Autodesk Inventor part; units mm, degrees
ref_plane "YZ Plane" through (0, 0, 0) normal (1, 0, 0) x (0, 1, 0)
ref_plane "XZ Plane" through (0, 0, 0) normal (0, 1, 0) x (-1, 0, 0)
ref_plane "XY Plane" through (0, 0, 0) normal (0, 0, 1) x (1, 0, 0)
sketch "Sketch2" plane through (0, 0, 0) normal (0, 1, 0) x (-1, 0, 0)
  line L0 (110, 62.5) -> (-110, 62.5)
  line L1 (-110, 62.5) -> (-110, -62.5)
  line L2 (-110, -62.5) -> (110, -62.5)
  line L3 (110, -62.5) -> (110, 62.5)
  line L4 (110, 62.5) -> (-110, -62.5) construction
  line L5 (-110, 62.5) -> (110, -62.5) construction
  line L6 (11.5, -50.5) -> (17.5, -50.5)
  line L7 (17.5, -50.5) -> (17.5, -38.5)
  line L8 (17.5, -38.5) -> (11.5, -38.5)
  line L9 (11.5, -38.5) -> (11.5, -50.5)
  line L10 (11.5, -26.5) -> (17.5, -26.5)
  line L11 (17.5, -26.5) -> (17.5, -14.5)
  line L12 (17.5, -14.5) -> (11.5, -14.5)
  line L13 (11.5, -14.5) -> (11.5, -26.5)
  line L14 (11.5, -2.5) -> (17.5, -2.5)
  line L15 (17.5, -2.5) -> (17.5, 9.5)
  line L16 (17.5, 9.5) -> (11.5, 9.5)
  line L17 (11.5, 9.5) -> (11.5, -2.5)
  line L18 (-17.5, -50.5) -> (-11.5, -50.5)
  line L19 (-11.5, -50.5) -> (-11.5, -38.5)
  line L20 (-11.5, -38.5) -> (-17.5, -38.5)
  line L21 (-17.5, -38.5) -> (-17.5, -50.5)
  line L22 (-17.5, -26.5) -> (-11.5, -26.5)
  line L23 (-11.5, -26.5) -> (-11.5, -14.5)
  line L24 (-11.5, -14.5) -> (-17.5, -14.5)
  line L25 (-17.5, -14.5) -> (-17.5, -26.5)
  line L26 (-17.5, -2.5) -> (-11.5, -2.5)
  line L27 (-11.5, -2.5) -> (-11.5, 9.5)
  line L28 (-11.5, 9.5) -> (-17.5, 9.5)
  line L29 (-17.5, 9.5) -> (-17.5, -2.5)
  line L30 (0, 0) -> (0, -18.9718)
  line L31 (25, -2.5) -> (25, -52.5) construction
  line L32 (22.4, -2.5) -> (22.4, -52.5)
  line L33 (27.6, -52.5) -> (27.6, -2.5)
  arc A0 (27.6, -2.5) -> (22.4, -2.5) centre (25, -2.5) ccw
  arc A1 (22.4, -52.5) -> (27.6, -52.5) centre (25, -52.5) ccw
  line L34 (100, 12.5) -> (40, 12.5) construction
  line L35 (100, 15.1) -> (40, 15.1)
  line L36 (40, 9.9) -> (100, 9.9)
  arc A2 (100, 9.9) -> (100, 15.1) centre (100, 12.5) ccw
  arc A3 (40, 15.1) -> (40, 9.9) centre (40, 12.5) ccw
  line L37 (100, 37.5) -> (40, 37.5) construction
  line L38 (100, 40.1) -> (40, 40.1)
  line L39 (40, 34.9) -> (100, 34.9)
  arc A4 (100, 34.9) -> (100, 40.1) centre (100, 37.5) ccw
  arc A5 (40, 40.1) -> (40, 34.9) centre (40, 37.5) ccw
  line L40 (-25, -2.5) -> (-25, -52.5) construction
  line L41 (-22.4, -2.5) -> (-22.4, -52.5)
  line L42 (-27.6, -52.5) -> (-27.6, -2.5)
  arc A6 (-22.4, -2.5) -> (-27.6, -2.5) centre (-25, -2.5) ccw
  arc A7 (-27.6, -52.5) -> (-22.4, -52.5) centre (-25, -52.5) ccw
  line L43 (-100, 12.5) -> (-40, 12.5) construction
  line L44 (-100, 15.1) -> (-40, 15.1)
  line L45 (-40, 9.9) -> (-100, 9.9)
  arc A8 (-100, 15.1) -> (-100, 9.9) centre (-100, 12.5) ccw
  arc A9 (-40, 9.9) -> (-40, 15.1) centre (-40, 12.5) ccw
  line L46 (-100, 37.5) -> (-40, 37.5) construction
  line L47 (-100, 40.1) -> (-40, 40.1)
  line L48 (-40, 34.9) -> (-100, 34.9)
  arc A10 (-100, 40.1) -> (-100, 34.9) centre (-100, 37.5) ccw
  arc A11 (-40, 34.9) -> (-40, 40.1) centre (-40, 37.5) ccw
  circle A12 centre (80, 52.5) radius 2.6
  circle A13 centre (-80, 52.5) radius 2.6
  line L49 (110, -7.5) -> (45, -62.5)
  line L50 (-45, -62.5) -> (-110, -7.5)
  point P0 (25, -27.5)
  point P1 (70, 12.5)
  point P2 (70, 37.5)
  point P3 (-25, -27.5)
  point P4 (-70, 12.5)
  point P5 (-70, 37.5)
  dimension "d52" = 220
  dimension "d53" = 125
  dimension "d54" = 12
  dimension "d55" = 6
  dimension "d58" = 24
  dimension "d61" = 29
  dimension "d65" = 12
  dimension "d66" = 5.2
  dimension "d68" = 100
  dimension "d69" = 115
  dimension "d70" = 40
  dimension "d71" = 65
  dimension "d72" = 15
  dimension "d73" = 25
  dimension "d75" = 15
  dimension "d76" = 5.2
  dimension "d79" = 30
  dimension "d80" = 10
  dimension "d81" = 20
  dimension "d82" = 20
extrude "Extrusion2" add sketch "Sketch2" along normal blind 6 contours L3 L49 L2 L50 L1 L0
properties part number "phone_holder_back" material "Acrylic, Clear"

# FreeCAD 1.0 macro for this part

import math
import FreeCAD as App
import Part
import Sketcher
Q = App.Units.Quantity

doc = App.newDocument("Part")
body = doc.addObject("PartDesign::Body", "Body")

# Sketch on XZ plane
sketch1 = body.newObject("Sketcher::SketchObject", "Sketch")
sketch1.AttachmentSupport = (doc.getObject("XZ_Plane"), [""])
sketch1.MapMode = "FlatFace"
sketch1.addGeometry([
    Part.LineSegment(App.Vector(-110, -7.5, 0), App.Vector(-110, 62.5, 0)),  # 0
    Part.LineSegment(App.Vector(-110, 62.5, 0), App.Vector(110, 62.5, 0)),  # 1
    Part.LineSegment(App.Vector(110, 62.5, 0), App.Vector(110, -7.5, 0)),  # 2
    Part.LineSegment(App.Vector(110, -7.5, 0), App.Vector(45, -62.5, 0)),  # 3
    Part.LineSegment(App.Vector(45, -62.5, 0), App.Vector(-45, -62.5, 0)),  # 4
    Part.LineSegment(App.Vector(-45, -62.5, 0), App.Vector(-110, -7.5, 0)),  # 5
    Part.LineSegment(App.Vector(11.5, -50.5, 0), App.Vector(17.5, -50.5, 0)),  # 6
    Part.LineSegment(App.Vector(17.5, -50.5, 0), App.Vector(17.5, -38.5, 0)),  # 7
    Part.LineSegment(App.Vector(17.5, -38.5, 0), App.Vector(11.5, -38.5, 0)),  # 8
    Part.LineSegment(App.Vector(11.5, -38.5, 0), App.Vector(11.5, -50.5, 0)),  # 9
    Part.ArcOfCircle(Part.Circle(App.Vector(25, -2.5, 0), App.Vector(0, 0, 1), 2.6), math.radians(0), math.radians(180)),  # 10
    Part.LineSegment(App.Vector(22.4, -2.5, 0), App.Vector(22.4, -52.5, 0)),  # 11
    Part.ArcOfCircle(Part.Circle(App.Vector(25, -52.5, 0), App.Vector(0, 0, 1), 2.6), math.radians(180), math.radians(360)),  # 12
    Part.LineSegment(App.Vector(27.6, -52.5, 0), App.Vector(27.6, -2.5, 0)),  # 13
    Part.LineSegment(App.Vector(11.5, -26.5, 0), App.Vector(17.5, -26.5, 0)),  # 14
    Part.LineSegment(App.Vector(17.5, -26.5, 0), App.Vector(17.5, -14.5, 0)),  # 15
    Part.LineSegment(App.Vector(17.5, -14.5, 0), App.Vector(11.5, -14.5, 0)),  # 16
    Part.LineSegment(App.Vector(11.5, -14.5, 0), App.Vector(11.5, -26.5, 0)),  # 17
    Part.LineSegment(App.Vector(-17.5, -50.5, 0), App.Vector(-11.5, -50.5, 0)),  # 18
    Part.LineSegment(App.Vector(-11.5, -50.5, 0), App.Vector(-11.5, -38.5, 0)),  # 19
    Part.LineSegment(App.Vector(-11.5, -38.5, 0), App.Vector(-17.5, -38.5, 0)),  # 20
    Part.LineSegment(App.Vector(-17.5, -38.5, 0), App.Vector(-17.5, -50.5, 0)),  # 21
    Part.LineSegment(App.Vector(-22.4, -52.5, 0), App.Vector(-22.4, -2.5, 0)),  # 22
    Part.ArcOfCircle(Part.Circle(App.Vector(-25, -2.5, 0), App.Vector(0, 0, 1), 2.6), math.radians(0), math.radians(180)),  # 23
    Part.LineSegment(App.Vector(-27.6, -2.5, 0), App.Vector(-27.6, -52.5, 0)),  # 24
    Part.ArcOfCircle(Part.Circle(App.Vector(-25, -52.5, 0), App.Vector(0, 0, 1), 2.6), math.radians(180), math.radians(360)),  # 25
    Part.LineSegment(App.Vector(-17.5, -26.5, 0), App.Vector(-11.5, -26.5, 0)),  # 26
    Part.LineSegment(App.Vector(-11.5, -26.5, 0), App.Vector(-11.5, -14.5, 0)),  # 27
    Part.LineSegment(App.Vector(-11.5, -14.5, 0), App.Vector(-17.5, -14.5, 0)),  # 28
    Part.LineSegment(App.Vector(-17.5, -14.5, 0), App.Vector(-17.5, -26.5, 0)),  # 29
    Part.ArcOfCircle(Part.Circle(App.Vector(100, 12.5, 0), App.Vector(0, 0, 1), 2.6), math.radians(-90), math.radians(90)),  # 30
    Part.LineSegment(App.Vector(100, 15.1, 0), App.Vector(40, 15.1, 0)),  # 31
    Part.ArcOfCircle(Part.Circle(App.Vector(40, 12.5, 0), App.Vector(0, 0, 1), 2.6), math.radians(90), math.radians(270)),  # 32
    Part.LineSegment(App.Vector(40, 9.9, 0), App.Vector(100, 9.9, 0)),  # 33
    Part.LineSegment(App.Vector(11.5, -2.5, 0), App.Vector(17.5, -2.5, 0)),  # 34
    Part.LineSegment(App.Vector(17.5, -2.5, 0), App.Vector(17.5, 9.5, 0)),  # 35
    Part.LineSegment(App.Vector(17.5, 9.5, 0), App.Vector(11.5, 9.5, 0)),  # 36
    Part.LineSegment(App.Vector(11.5, 9.5, 0), App.Vector(11.5, -2.5, 0)),  # 37
    Part.ArcOfCircle(Part.Circle(App.Vector(100, 37.5, 0), App.Vector(0, 0, 1), 2.6), math.radians(-90), math.radians(90)),  # 38
    Part.LineSegment(App.Vector(100, 40.1, 0), App.Vector(40, 40.1, 0)),  # 39
    Part.ArcOfCircle(Part.Circle(App.Vector(40, 37.5, 0), App.Vector(0, 0, 1), 2.6), math.radians(90), math.radians(270)),  # 40
    Part.LineSegment(App.Vector(40, 34.9, 0), App.Vector(100, 34.9, 0)),  # 41
    Part.Circle(App.Vector(80, 52.5, 0), App.Vector(0, 0, 1), 2.6),  # 42
    Part.LineSegment(App.Vector(-17.5, -2.5, 0), App.Vector(-11.5, -2.5, 0)),  # 43
    Part.LineSegment(App.Vector(-11.5, -2.5, 0), App.Vector(-11.5, 9.5, 0)),  # 44
    Part.LineSegment(App.Vector(-11.5, 9.5, 0), App.Vector(-17.5, 9.5, 0)),  # 45
    Part.LineSegment(App.Vector(-17.5, 9.5, 0), App.Vector(-17.5, -2.5, 0)),  # 46
    Part.LineSegment(App.Vector(-40, 15.1, 0), App.Vector(-100, 15.1, 0)),  # 47
    Part.ArcOfCircle(Part.Circle(App.Vector(-100, 12.5, 0), App.Vector(0, 0, 1), 2.6), math.radians(90), math.radians(270)),  # 48
    Part.LineSegment(App.Vector(-100, 9.9, 0), App.Vector(-40, 9.9, 0)),  # 49
    Part.ArcOfCircle(Part.Circle(App.Vector(-40, 12.5, 0), App.Vector(0, 0, 1), 2.6), math.radians(-90), math.radians(90)),  # 50
    Part.LineSegment(App.Vector(-40, 40.1, 0), App.Vector(-100, 40.1, 0)),  # 51
    Part.ArcOfCircle(Part.Circle(App.Vector(-100, 37.5, 0), App.Vector(0, 0, 1), 2.6), math.radians(90), math.radians(270)),  # 52
    Part.LineSegment(App.Vector(-100, 34.9, 0), App.Vector(-40, 34.9, 0)),  # 53
    Part.ArcOfCircle(Part.Circle(App.Vector(-40, 37.5, 0), App.Vector(0, 0, 1), 2.6), math.radians(-90), math.radians(90)),  # 54
    Part.Circle(App.Vector(-80, 52.5, 0), App.Vector(0, 0, 1), 2.6),  # 55
], False)
sketch1.addConstraint([
    Sketcher.Constraint("Coincident", 0, 2, 1, 1),
    Sketcher.Constraint("Coincident", 1, 2, 2, 1),
    Sketcher.Constraint("Coincident", 2, 2, 3, 1),
    Sketcher.Constraint("Coincident", 3, 2, 4, 1),
    Sketcher.Constraint("Coincident", 4, 2, 5, 1),
    Sketcher.Constraint("Coincident", 5, 2, 0, 1),
    Sketcher.Constraint("Coincident", 6, 2, 7, 1),
    Sketcher.Constraint("Coincident", 7, 2, 8, 1),
    Sketcher.Constraint("Coincident", 8, 2, 9, 1),
    Sketcher.Constraint("Coincident", 9, 2, 6, 1),
    Sketcher.Constraint("Tangent", 10, 2, 11, 1),
    Sketcher.Constraint("Tangent", 11, 2, 12, 1),
    Sketcher.Constraint("Tangent", 12, 2, 13, 1),
    Sketcher.Constraint("Tangent", 13, 2, 10, 1),
    Sketcher.Constraint("Coincident", 14, 2, 15, 1),
    Sketcher.Constraint("Coincident", 15, 2, 16, 1),
    Sketcher.Constraint("Coincident", 16, 2, 17, 1),
    Sketcher.Constraint("Coincident", 17, 2, 14, 1),
    Sketcher.Constraint("Coincident", 18, 2, 19, 1),
    Sketcher.Constraint("Coincident", 19, 2, 20, 1),
    Sketcher.Constraint("Coincident", 20, 2, 21, 1),
    Sketcher.Constraint("Coincident", 21, 2, 18, 1),
    Sketcher.Constraint("Tangent", 22, 2, 23, 1),
    Sketcher.Constraint("Tangent", 23, 2, 24, 1),
    Sketcher.Constraint("Tangent", 24, 2, 25, 1),
    Sketcher.Constraint("Tangent", 25, 2, 22, 1),
    Sketcher.Constraint("Coincident", 26, 2, 27, 1),
    Sketcher.Constraint("Coincident", 27, 2, 28, 1),
    Sketcher.Constraint("Coincident", 28, 2, 29, 1),
    Sketcher.Constraint("Coincident", 29, 2, 26, 1),
    Sketcher.Constraint("Tangent", 30, 2, 31, 1),
    Sketcher.Constraint("Tangent", 31, 2, 32, 1),
    Sketcher.Constraint("Tangent", 32, 2, 33, 1),
    Sketcher.Constraint("Tangent", 33, 2, 30, 1),
    Sketcher.Constraint("Coincident", 34, 2, 35, 1),
    Sketcher.Constraint("Coincident", 35, 2, 36, 1),
    Sketcher.Constraint("Coincident", 36, 2, 37, 1),
    Sketcher.Constraint("Coincident", 37, 2, 34, 1),
    Sketcher.Constraint("Tangent", 38, 2, 39, 1),
    Sketcher.Constraint("Tangent", 39, 2, 40, 1),
    Sketcher.Constraint("Tangent", 40, 2, 41, 1),
    Sketcher.Constraint("Tangent", 41, 2, 38, 1),
    Sketcher.Constraint("Coincident", 43, 2, 44, 1),
    Sketcher.Constraint("Coincident", 44, 2, 45, 1),
    Sketcher.Constraint("Coincident", 45, 2, 46, 1),
    Sketcher.Constraint("Coincident", 46, 2, 43, 1),
    Sketcher.Constraint("Tangent", 47, 2, 48, 1),
    Sketcher.Constraint("Tangent", 48, 2, 49, 1),
    Sketcher.Constraint("Tangent", 49, 2, 50, 1),
    Sketcher.Constraint("Tangent", 50, 2, 47, 1),
    Sketcher.Constraint("Tangent", 51, 2, 52, 1),
    Sketcher.Constraint("Tangent", 52, 2, 53, 1),
    Sketcher.Constraint("Tangent", 53, 2, 54, 1),
    Sketcher.Constraint("Tangent", 54, 2, 51, 1),
    Sketcher.Constraint("Vertical", 0),
    Sketcher.Constraint("Horizontal", 1),
    Sketcher.Constraint("Vertical", 2),
    Sketcher.Constraint("Horizontal", 4),
    Sketcher.Constraint("Horizontal", 6),
    Sketcher.Constraint("Vertical", 7),
    Sketcher.Constraint("Horizontal", 8),
    Sketcher.Constraint("Vertical", 9),
    Sketcher.Constraint("Vertical", 11),
    Sketcher.Constraint("Vertical", 13),
    Sketcher.Constraint("Horizontal", 14),
    Sketcher.Constraint("Vertical", 15),
    Sketcher.Constraint("Horizontal", 16),
    Sketcher.Constraint("Vertical", 17),
    Sketcher.Constraint("Horizontal", 18),
    Sketcher.Constraint("Vertical", 19),
    Sketcher.Constraint("Horizontal", 20),
    Sketcher.Constraint("Vertical", 21),
    Sketcher.Constraint("Vertical", 22),
    Sketcher.Constraint("Vertical", 24),
    Sketcher.Constraint("Horizontal", 26),
    Sketcher.Constraint("Vertical", 27),
    Sketcher.Constraint("Horizontal", 28),
    Sketcher.Constraint("Vertical", 29),
    Sketcher.Constraint("Horizontal", 31),
    Sketcher.Constraint("Horizontal", 33),
    Sketcher.Constraint("Horizontal", 34),
    Sketcher.Constraint("Vertical", 35),
    Sketcher.Constraint("Horizontal", 36),
    Sketcher.Constraint("Vertical", 37),
    Sketcher.Constraint("Horizontal", 39),
    Sketcher.Constraint("Horizontal", 41),
    Sketcher.Constraint("Horizontal", 43),
    Sketcher.Constraint("Vertical", 44),
    Sketcher.Constraint("Horizontal", 45),
    Sketcher.Constraint("Vertical", 46),
    Sketcher.Constraint("Horizontal", 47),
    Sketcher.Constraint("Horizontal", 49),
    Sketcher.Constraint("Horizontal", 51),
    Sketcher.Constraint("Horizontal", 53),
    Sketcher.Constraint("Equal", 12, 23),
    Sketcher.Constraint("Equal", 25, 30),
    Sketcher.Constraint("Equal", 32, 38),
    Sketcher.Constraint("Equal", 40, 42),
    Sketcher.Constraint("Equal", 42, 48),
    Sketcher.Constraint("Equal", 50, 52),
    Sketcher.Constraint("Equal", 54, 55),
    Sketcher.Constraint("Symmetric", 10, 3, 23, 3, -2),
    Sketcher.Constraint("Symmetric", 30, 3, 48, 3, -2),
    Sketcher.Constraint("Symmetric", 38, 3, 52, 3, -2),
    Sketcher.Constraint("Symmetric", 42, 3, 55, 3, -2),
    Sketcher.Constraint("Symmetric", 2, 2, 5, 2, -2),
    Sketcher.Constraint("Symmetric", 9, 2, 18, 2, -2),
    Sketcher.Constraint("Symmetric", 7, 2, 20, 2, -2),
    Sketcher.Constraint("Symmetric", 17, 2, 26, 2, -2),
    Sketcher.Constraint("Symmetric", 15, 2, 28, 2, -2),
    Sketcher.Constraint("Symmetric", 37, 2, 43, 2, -2),
    Sketcher.Constraint("Symmetric", 35, 2, 45, 2, -2),
    Sketcher.Constraint("Horizontal", 12, 3, 25, 3),
    Sketcher.Constraint("Horizontal", 23, 2, 34, 2),
    Sketcher.Constraint("Vertical", 30, 3, 38, 3),
    Sketcher.Constraint("Vertical", 32, 3, 40, 3),
    Sketcher.Constraint("Vertical", 50, 3, 54, 3),
    Sketcher.Constraint("Vertical", 7, 2, 14, 2),
    Sketcher.Constraint("Vertical", 9, 2, 16, 2),
    Sketcher.Constraint("Vertical", 15, 2, 34, 2),
    Sketcher.Constraint("Vertical", 17, 2, 36, 2),
    Sketcher.Constraint("Equal", 41, 47),
    Sketcher.Constraint("Equal", 9, 15),
    Sketcher.Constraint("Equal", 29, 35),
    Sketcher.Constraint("Equal", 3, 5),
    Sketcher.Constraint("Diameter", 42, Q("5.2 mm")),
    Sketcher.Constraint("DistanceX", 1, 1, 1, 2, Q("220 mm")),
    Sketcher.Constraint("DistanceX", 6, 1, 6, 2, Q("6 mm")),
    Sketcher.Constraint("DistanceY", 7, 1, 7, 2, Q("12 mm")),
    Sketcher.Constraint("DistanceX", -1, 1, 10, 3, Q("25 mm")),
    Sketcher.Constraint("DistanceX", -1, 1, 30, 3, Q("100 mm")),
    Sketcher.Constraint("DistanceX", -1, 1, 32, 3, Q("40 mm")),
    Sketcher.Constraint("DistanceX", 4, 2, 4, 1, Q("90 mm")),
    Sketcher.Constraint("DistanceY", 0, 1, 0, 2, Q("70 mm")),
    Sketcher.Constraint("DistanceY", 11, 2, 11, 1, Q("50 mm")),
    Sketcher.Constraint("DistanceX", -1, 1, 42, 3, Q("80 mm")),
    Sketcher.Constraint("DistanceY", 10, 3, -1, 1, Q("2.5 mm")),
    Sketcher.Constraint("DistanceY", -1, 1, 30, 3, Q("12.5 mm")),
    Sketcher.Constraint("DistanceY", -1, 1, 38, 3, Q("37.5 mm")),
    Sketcher.Constraint("DistanceY", -1, 1, 42, 3, Q("52.5 mm")),
    Sketcher.Constraint("DistanceY", -1, 1, 0, 2, Q("62.5 mm")),
    Sketcher.Constraint("DistanceY", 3, 2, -1, 1, Q("62.5 mm")),
    Sketcher.Constraint("DistanceX", -1, 1, 6, 2, Q("17.5 mm")),
    Sketcher.Constraint("DistanceY", 6, 2, -1, 1, Q("50.5 mm")),
    Sketcher.Constraint("DistanceY", 14, 2, -1, 1, Q("26.5 mm")),
])
pad1 = body.newObject("PartDesign::Pad", "Pad")
pad1.Profile = sketch1
pad1.Length = 6
pad1.Reversed = True

doc.recompute()
